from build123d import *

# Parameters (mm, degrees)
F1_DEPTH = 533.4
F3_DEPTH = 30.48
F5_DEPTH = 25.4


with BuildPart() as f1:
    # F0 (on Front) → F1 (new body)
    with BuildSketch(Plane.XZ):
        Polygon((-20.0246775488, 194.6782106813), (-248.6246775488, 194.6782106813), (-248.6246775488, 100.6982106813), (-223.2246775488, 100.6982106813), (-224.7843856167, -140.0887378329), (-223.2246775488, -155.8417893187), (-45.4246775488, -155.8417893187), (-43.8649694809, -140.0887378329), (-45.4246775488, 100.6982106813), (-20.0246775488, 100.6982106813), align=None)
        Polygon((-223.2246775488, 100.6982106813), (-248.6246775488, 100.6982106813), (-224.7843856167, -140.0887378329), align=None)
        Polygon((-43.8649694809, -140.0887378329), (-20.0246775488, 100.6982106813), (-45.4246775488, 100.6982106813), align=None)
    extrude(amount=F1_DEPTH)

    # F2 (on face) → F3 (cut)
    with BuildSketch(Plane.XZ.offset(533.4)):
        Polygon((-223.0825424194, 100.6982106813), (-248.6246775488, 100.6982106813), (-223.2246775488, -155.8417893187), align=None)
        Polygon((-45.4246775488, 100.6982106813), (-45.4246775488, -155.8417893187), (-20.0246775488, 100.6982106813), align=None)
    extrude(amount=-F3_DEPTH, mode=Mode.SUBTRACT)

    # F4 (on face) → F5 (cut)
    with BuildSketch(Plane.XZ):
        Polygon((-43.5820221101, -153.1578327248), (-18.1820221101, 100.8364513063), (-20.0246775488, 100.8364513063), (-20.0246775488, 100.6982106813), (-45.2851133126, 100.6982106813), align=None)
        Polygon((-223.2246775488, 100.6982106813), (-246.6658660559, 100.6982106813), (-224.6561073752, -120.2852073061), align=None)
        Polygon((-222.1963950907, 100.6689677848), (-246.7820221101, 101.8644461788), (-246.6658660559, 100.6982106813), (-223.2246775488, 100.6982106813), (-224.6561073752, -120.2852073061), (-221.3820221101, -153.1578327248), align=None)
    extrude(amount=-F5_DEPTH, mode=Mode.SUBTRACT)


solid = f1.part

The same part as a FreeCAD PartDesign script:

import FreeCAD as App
import Part
import Sketcher

V = App.Vector
Q = App.Units.Quantity


def add_polygon(sketch, points):
    """Adds a closed chain of lines whose ends are joined by coincident constraints."""
    first, n = sketch.GeometryCount, len(points)
    for a, b in zip(points, points[1:] + points[:1]):
        sketch.addGeometry(Part.LineSegment(App.Vector(*a, 0), App.Vector(*b, 0)), False)
    for i in range(n):
        sketch.addConstraint(Sketcher.Constraint("Coincident", first + i, 2, first + (i + 1) % n, 1))

doc = App.newDocument("Part")
body = doc.addObject("PartDesign::Body", "Body")

sketch1 = body.newObject("Sketcher::SketchObject", "Sketch")
sketch1.AttachmentSupport = (doc.getObject("XZ_Plane"), [""])
sketch1.MapMode = "FlatFace"
add_polygon(sketch1, [(-20, 195), (-249, 195), (-249, 101), (-223, -156), (-45, -156), (-20, 101)])
sketch1.addConstraint([
    Sketcher.Constraint("Horizontal", 0),
    Sketcher.Constraint("Vertical", 1),
    Sketcher.Constraint("Horizontal", 3),
    Sketcher.Constraint("Vertical", 5),
    Sketcher.Constraint("Horizontal", 1, 2, 4, 2),
    Sketcher.Constraint("Equal", 2, 4),
    Sketcher.Constraint("DistanceX", 0, 2, 0, 1, Q("9 in")),
    Sketcher.Constraint("DistanceX", 3, 1, 3, 2, Q("7 in")),
    Sketcher.Constraint("DistanceY", 1, 2, 1, 1, Q("3.7 in")),
    Sketcher.Constraint("DistanceY", 2, 2, 1, 2, Q("10.1 in")),
    Sketcher.Constraint("DistanceY", -1, 1, 0, 2, 194.678211),
    Sketcher.Constraint("DistanceX", 0, 2, -1, 1, 248.624678),
])
pad1 = body.newObject("PartDesign::Pad", "Pad")
pad1.Profile = sketch1
pad1.Length = Q("21 in")

sketch2 = body.newObject("Sketcher::SketchObject", "Sketch001")
sketch2.AttachmentSupport = (doc.getObject("XZ_Plane"), [""])
sketch2.MapMode = "FlatFace"
sketch2.AttachmentOffset = App.Placement(V(0, 0, 21 * 25.4), App.Rotation())
add_polygon(sketch2, [(-223, 101), (-249, 101), (-223, -156)])
add_polygon(sketch2, [(-45, 101), (-45, -156), (-20, 101)])
sketch2.addConstraint([
    Sketcher.Constraint("Horizontal", 0),
    Sketcher.Constraint("Vertical", 3),
    Sketcher.Constraint("Horizontal", 5),
    Sketcher.Constraint("Horizontal", 1, 2, 3, 2),
    Sketcher.Constraint("Horizontal", 2, 2, 4, 2),
    Sketcher.Constraint("Equal", 1, 4),
    Sketcher.Constraint("DistanceX", 5, 2, 5, 1, Q("1 in")),
    Sketcher.Constraint("DistanceY", 3, 2, 3, 1, Q("10.1 in")),
    Sketcher.Constraint("DistanceX", 1, 2, 3, 2, Q("7 in")),
    Sketcher.Constraint("DistanceX", 0, 2, 0, 1, 25.542135),
    Sketcher.Constraint("DistanceY", -1, 1, 0, 2, 100.698211),
    Sketcher.Constraint("DistanceX", 0, 2, -1, 1, 248.624678),
])
pocket1 = body.newObject("PartDesign::Pocket", "Pocket")
pocket1.Profile = sketch2
pocket1.Length = Q("1.2 in")

sketch3 = body.newObject("Sketcher::SketchObject", "Sketch002")
sketch3.AttachmentSupport = (doc.getObject("XZ_Plane"), [""])
sketch3.MapMode = "FlatFace"
add_polygon(sketch3, [(-43.58, -153.16), (-18.18, 100.84), (-20.02, 100.84), (-20.02, 100.7), (-45.29, 100.7)])
add_polygon(sketch3, [(-246.67, 100.7), (-221.38, -153.16), (-222.2, 100.67), (-246.78, 101.86)])
sketch3.addConstraint([
    Sketcher.Constraint("Horizontal", 1),
    Sketcher.Constraint("Vertical", 2),
    Sketcher.Constraint("Horizontal", 3),
    Sketcher.Constraint("Parallel", 5, 8),
    Sketcher.Constraint("Horizontal", 4, 2, 5, 2),
    Sketcher.Constraint("Horizontal", 3, 2, 8, 2),
    Sketcher.Constraint("DistanceX", 4, 2, 0, 2, Q("1 in")),
    Sketcher.Constraint("DistanceX", 5, 2, 4, 2, Q("7 in")),
    Sketcher.Constraint("DistanceX", 7, 2, 0, 2, Q("9 in")),
    Sketcher.Constraint("DistanceY", 2, 2, 2, 1, 0.138241),
    Sketcher.Constraint("DistanceY", 5, 2, 6, 2, 253.826801),
    Sketcher.Constraint("Distance", 5, 255.112061),
    Sketcher.Constraint("DistanceX", 1, 2, 1, 1, 1.842655),
    Sketcher.Constraint("DistanceX", 3, 2, 3, 1, 25.260436),
    Sketcher.Constraint("DistanceY", -1, 1, 0, 2, 100.836451),
    Sketcher.Constraint("DistanceX", 6, 2, 3, 2, 176.911282),
    Sketcher.Constraint("DistanceY", 6, 2, 7, 2, 1.195478),
    Sketcher.Constraint("DistanceX", 0, 2, -1, 1, 18.182022),
])
pocket2 = body.newObject("PartDesign::Pocket", "Pocket001")
pocket2.Profile = sketch3
pocket2.Length = Q("1 in")

doc.recompute()
